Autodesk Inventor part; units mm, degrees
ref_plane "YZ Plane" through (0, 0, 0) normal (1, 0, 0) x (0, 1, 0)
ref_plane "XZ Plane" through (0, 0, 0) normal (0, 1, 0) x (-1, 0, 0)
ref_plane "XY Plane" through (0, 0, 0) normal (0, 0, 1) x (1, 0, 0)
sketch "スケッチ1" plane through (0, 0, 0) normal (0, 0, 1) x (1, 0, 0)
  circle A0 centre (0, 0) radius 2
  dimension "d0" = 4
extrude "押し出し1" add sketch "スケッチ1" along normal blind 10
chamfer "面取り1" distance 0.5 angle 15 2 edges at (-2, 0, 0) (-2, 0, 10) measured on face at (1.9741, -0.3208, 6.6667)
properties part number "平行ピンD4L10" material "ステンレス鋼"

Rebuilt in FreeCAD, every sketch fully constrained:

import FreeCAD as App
import Part
import Sketcher


def edges_at(feature, points):
    """Names of the edges that pass closest to the given points."""
    edges = feature.Shape.Edges
    near = lambda p: min(range(len(edges)), key=lambda i: edges[i].distToShape(Part.Vertex(*p))[0])
    return sorted({f"Edge{near(p) + 1}" for p in points})

doc = App.newDocument("Part")
params = doc.addObject("Spreadsheet::Sheet", "Params")
for row, (alias, value) in enumerate([
    ("sketch1_diameter", "4 mm"),
    ("pad1_length", "10 mm"),
    ("chamfer_size", "0.5 mm"),
], start=1):
    params.set(f"A{row}", alias)
    params.set(f"B{row}", "=" + value)
    params.setAlias(f"B{row}", alias)

body = doc.addObject("PartDesign::Body", "Body")

sketch1 = body.newObject("Sketcher::SketchObject", "Sketch")
sketch1.AttachmentSupport = (doc.getObject("XY_Plane"), [""])
sketch1.MapMode = "FlatFace"
sketch1.addGeometry(Part.Circle(App.Vector(0, 0, 0), App.Vector(0, 0, 1), 2), False)
sketch1.addConstraint(Sketcher.Constraint("Coincident", 0, 3, -1, 1))
sketch1.addConstraint(Sketcher.Constraint("Diameter", 0, 4.0))
sketch1.setExpression("Constraints[1]", "Params.sketch1_diameter")
pad1 = body.newObject("PartDesign::Pad", "Pad")
pad1.Profile = sketch1
pad1.setExpression("Length", "Params.pad1_length")
doc.recompute()

chamfer = body.newObject("PartDesign::Chamfer", "Chamfer")
chamfer.Base = (pad1, edges_at(pad1, [(-2, 0, 0), (-2, 0, 10)]))
chamfer.ChamferType = "Distance and Angle"
chamfer.setExpression("Size", "Params.chamfer_size")
chamfer.Angle = 15

doc.recompute()
